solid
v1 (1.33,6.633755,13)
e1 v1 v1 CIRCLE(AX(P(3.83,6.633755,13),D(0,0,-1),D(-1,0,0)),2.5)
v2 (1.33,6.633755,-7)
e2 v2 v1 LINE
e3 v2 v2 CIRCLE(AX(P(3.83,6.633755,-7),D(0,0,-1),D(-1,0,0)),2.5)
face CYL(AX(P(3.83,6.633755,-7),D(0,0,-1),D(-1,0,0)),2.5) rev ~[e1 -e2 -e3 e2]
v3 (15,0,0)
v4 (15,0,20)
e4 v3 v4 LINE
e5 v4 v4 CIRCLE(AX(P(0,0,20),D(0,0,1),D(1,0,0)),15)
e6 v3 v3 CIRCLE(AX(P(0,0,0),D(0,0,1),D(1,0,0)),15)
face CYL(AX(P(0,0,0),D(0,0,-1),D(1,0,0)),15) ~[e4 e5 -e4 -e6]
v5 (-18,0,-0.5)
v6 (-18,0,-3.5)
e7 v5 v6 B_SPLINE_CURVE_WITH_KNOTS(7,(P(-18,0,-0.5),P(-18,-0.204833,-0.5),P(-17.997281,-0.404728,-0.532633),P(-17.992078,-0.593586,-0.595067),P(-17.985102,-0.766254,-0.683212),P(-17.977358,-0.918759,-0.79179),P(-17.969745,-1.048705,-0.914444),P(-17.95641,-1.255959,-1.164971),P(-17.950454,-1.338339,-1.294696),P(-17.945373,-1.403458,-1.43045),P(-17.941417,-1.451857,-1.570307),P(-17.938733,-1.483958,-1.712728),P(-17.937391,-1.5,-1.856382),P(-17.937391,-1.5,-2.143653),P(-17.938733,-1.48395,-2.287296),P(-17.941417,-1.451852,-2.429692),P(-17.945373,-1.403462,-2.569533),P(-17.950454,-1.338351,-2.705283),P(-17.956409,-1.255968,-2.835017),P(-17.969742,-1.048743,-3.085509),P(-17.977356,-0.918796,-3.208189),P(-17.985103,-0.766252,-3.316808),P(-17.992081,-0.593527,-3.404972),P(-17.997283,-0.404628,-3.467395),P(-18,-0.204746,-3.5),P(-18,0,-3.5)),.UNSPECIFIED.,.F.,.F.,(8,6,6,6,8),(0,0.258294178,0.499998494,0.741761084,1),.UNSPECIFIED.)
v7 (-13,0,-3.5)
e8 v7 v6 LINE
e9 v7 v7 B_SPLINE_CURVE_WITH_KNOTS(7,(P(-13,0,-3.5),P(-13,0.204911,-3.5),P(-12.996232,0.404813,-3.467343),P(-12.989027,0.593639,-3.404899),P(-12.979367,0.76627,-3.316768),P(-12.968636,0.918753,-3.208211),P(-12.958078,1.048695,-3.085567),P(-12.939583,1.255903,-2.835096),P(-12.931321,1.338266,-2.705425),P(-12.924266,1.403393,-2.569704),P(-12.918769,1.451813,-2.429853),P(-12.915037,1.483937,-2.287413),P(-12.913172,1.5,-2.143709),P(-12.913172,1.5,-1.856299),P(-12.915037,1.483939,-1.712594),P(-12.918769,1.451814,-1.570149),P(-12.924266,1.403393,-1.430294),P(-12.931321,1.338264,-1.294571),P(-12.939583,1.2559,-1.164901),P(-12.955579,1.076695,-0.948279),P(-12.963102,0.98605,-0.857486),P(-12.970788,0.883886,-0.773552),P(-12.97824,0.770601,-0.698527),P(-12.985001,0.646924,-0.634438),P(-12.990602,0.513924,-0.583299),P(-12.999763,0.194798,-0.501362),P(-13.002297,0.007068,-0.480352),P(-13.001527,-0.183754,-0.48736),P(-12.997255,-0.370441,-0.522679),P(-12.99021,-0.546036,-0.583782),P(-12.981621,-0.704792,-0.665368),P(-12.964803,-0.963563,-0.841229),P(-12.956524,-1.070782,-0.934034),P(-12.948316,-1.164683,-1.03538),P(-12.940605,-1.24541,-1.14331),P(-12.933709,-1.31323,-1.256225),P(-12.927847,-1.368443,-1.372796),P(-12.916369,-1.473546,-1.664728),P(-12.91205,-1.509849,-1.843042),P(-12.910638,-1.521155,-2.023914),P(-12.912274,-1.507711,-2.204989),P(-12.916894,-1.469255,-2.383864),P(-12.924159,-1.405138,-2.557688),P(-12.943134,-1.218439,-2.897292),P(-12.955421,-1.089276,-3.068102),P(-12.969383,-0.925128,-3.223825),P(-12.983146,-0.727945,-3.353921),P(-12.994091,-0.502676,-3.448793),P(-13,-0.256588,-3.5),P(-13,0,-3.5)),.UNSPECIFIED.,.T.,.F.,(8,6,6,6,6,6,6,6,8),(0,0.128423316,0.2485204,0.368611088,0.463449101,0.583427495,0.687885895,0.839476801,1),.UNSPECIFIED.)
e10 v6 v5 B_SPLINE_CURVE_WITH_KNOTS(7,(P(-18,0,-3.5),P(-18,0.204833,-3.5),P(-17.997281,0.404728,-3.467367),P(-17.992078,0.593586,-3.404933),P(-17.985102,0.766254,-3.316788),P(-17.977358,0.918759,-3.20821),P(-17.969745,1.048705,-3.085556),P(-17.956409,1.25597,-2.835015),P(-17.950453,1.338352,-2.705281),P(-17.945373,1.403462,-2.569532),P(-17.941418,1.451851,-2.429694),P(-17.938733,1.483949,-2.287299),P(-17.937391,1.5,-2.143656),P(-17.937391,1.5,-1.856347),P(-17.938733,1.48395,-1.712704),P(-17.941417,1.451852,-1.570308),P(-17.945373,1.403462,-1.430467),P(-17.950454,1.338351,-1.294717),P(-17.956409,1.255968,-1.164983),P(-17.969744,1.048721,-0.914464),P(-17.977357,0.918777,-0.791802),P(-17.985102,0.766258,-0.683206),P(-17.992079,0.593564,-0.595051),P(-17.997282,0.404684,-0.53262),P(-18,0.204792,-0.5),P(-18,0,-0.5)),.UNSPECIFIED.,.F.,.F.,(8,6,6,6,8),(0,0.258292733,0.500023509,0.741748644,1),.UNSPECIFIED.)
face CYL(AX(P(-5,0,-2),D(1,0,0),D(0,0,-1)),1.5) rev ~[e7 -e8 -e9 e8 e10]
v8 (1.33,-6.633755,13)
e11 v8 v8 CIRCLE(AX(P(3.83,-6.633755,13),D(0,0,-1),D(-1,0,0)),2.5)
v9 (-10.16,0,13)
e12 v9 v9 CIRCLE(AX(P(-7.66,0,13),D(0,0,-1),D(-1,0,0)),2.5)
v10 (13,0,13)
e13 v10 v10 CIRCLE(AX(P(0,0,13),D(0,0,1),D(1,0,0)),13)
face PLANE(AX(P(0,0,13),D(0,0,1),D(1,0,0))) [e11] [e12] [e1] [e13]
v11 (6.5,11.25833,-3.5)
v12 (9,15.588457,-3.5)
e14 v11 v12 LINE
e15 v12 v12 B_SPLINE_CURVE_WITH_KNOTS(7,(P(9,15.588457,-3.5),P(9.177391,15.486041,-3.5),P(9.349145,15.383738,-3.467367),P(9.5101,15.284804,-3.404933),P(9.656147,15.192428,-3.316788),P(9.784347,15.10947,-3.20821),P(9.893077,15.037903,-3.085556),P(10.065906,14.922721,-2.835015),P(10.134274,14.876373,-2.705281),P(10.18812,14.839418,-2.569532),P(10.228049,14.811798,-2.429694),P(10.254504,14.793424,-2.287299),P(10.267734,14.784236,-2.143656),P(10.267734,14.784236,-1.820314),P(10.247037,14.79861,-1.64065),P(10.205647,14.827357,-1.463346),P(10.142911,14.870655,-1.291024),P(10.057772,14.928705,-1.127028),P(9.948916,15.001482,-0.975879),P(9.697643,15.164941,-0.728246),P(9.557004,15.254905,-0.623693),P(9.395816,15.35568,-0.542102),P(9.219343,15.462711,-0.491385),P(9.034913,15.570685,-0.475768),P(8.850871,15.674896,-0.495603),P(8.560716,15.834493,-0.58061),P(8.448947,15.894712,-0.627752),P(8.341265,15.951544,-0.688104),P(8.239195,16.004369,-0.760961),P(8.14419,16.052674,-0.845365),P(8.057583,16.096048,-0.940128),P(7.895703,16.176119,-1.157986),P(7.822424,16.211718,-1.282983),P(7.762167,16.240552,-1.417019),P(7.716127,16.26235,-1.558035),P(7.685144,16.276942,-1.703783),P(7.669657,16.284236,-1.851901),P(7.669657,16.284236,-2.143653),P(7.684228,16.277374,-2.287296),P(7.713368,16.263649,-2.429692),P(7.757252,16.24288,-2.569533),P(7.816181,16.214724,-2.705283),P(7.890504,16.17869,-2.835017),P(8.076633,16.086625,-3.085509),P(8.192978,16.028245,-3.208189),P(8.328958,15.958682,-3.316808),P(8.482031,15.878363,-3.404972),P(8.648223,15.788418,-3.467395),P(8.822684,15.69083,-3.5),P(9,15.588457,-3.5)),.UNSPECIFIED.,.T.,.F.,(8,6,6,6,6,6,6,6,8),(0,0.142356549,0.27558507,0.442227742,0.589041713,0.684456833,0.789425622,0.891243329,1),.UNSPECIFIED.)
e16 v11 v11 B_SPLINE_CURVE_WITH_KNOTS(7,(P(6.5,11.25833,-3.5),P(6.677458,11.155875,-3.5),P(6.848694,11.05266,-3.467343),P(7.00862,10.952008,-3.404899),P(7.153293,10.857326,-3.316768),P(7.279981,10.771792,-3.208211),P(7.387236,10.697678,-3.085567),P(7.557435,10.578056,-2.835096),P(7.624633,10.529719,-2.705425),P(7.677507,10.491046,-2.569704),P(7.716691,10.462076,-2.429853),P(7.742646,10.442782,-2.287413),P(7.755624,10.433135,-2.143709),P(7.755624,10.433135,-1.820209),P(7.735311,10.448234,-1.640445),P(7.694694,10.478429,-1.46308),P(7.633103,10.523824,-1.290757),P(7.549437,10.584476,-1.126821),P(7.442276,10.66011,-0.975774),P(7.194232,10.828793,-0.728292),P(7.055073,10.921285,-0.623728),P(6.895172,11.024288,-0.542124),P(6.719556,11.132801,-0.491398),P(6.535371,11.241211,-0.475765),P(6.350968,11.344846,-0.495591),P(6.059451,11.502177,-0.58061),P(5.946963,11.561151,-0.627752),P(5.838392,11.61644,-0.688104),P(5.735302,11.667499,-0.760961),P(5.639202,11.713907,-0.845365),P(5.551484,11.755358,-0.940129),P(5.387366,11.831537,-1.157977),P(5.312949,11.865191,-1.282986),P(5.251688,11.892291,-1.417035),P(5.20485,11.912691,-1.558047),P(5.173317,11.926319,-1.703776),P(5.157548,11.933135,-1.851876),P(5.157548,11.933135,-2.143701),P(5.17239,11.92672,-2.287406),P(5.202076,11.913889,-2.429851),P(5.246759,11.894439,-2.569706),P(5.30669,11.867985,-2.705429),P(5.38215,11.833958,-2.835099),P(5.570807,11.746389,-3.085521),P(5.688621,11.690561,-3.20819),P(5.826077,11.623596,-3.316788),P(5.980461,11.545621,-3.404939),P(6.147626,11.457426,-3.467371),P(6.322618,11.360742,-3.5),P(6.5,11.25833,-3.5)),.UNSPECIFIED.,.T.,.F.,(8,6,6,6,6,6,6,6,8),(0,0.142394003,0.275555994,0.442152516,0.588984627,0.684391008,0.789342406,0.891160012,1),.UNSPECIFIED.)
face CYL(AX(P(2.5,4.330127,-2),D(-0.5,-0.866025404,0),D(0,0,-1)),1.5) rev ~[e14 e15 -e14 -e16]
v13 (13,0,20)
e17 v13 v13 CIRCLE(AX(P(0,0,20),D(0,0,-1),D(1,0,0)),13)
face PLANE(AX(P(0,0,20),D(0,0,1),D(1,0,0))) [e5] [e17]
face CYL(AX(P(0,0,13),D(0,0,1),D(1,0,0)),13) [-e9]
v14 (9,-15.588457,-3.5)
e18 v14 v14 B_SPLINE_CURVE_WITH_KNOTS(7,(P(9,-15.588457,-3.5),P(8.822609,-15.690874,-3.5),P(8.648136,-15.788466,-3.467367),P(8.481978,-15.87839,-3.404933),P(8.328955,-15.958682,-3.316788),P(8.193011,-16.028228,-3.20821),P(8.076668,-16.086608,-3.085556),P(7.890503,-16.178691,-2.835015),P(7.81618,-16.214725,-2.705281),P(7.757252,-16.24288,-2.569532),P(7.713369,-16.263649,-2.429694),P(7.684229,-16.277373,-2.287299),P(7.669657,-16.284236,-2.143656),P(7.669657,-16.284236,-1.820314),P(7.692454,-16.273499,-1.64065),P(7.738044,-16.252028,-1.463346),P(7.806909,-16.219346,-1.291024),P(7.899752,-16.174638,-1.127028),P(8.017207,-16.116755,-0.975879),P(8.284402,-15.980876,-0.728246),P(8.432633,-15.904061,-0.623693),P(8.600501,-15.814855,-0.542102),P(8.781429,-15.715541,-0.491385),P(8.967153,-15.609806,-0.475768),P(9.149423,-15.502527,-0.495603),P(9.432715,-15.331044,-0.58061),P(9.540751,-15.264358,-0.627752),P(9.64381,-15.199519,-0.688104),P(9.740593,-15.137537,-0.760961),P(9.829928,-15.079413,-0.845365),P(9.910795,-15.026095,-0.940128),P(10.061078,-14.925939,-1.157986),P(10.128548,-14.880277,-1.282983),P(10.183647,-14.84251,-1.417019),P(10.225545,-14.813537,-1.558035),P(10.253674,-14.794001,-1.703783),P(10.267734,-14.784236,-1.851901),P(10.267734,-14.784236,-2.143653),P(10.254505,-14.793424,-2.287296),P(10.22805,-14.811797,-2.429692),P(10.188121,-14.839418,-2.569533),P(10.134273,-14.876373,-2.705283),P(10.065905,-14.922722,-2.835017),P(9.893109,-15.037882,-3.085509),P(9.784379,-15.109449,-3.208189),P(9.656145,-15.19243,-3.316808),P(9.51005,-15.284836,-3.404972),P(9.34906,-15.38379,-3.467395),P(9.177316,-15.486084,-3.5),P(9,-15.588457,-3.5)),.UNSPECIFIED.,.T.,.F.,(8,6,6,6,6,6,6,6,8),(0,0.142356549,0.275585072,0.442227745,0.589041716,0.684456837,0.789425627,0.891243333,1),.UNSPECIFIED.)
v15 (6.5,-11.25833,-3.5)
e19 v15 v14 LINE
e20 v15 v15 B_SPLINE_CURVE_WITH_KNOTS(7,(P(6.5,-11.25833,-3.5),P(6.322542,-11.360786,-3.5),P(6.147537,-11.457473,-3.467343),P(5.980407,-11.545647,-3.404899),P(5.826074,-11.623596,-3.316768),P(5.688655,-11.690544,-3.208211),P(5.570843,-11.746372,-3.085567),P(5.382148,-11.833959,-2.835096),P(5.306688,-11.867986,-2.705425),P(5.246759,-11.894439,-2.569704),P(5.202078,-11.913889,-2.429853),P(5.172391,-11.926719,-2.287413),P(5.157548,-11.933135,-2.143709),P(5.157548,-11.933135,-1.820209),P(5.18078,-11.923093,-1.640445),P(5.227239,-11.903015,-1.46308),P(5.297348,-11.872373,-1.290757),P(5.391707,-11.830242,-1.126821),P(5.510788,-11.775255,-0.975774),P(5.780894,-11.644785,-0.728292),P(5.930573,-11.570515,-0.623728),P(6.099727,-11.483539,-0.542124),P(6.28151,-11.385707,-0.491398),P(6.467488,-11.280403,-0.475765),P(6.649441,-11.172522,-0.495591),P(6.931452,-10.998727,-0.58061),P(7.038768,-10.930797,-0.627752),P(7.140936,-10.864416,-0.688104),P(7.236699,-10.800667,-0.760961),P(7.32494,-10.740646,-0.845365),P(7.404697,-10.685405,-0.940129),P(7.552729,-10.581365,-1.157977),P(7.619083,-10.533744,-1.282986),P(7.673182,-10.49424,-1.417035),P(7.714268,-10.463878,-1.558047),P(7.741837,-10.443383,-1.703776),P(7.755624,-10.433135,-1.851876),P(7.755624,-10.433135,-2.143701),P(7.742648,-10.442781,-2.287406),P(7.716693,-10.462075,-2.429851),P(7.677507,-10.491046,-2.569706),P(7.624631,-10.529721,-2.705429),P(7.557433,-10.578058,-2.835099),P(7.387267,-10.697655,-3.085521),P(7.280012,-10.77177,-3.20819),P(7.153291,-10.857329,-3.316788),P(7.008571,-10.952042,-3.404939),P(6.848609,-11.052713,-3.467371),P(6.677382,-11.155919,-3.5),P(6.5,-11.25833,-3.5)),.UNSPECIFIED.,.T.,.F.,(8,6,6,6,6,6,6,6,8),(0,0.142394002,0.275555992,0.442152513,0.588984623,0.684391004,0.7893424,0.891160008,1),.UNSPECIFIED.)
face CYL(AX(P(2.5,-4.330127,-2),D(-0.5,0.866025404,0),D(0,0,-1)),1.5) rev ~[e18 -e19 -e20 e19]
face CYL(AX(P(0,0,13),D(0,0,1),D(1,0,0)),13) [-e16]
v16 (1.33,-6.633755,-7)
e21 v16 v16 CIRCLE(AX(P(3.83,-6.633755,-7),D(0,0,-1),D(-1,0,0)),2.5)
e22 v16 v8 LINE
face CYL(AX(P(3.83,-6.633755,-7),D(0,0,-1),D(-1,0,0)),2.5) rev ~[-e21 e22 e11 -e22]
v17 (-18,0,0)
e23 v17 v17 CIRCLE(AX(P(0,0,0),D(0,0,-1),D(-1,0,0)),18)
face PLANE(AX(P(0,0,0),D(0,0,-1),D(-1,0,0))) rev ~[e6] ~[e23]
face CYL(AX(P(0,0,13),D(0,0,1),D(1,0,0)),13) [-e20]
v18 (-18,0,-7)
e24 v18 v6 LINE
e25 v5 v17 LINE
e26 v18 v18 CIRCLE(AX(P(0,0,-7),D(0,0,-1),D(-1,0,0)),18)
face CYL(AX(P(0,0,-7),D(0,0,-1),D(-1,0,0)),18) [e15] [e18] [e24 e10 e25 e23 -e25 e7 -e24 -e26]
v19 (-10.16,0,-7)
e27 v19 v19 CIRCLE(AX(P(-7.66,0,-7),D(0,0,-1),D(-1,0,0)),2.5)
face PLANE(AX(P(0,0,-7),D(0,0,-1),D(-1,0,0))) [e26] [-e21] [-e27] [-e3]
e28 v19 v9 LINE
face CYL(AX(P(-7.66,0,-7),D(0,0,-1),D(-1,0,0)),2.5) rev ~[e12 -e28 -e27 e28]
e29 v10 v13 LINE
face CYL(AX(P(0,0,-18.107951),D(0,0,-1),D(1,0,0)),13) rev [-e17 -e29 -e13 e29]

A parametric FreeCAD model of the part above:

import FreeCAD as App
import Part
import Sketcher

doc = App.newDocument("Part")
params = doc.addObject("Spreadsheet::Sheet", "Params")
for row, (alias, value) in enumerate([
    ("sketch1_diameter", "30 mm"),
    ("pad1_length", "20 mm"),
    ("sketch2_diameter", "21.9 mm"),
    ("pad2_length", "3.5 mm"),
    ("sketch3_diameter", "6.1 mm"),
    ("pocket1_length", "4.1 mm"),
    ("sketch4_diameter", "3 mm"),
    ("pocket2_length", "4 mm"),
    ("sketch5_diameter", "6 mm"),
    ("sketch5_diameter2", "21.9 mm"),
    ("pad3_length", "11 mm"),
    ("sketch6_diameter", "3 mm"),
    ("sketch7_diameter", "36 mm"),
    ("sketch7_diameter2", "6.5 mm"),
    ("sketch7_diameter3", "6.1 mm"),
    ("pad4_length", "7 mm"),
    ("sketch8_diameter", "3 mm"),
    ("pocket4_length", "17 mm"),
    ("sketch9_diameter", "26 mm"),
    ("sketch10_diameter", "26 mm"),
    ("pad5_length", "20 mm"),
    ("sketch11_diameter", "5 mm"),
], start=1):
    params.set(f"A{row}", alias)
    params.set(f"B{row}", "=" + value)
    params.setAlias(f"B{row}", alias)

body = doc.addObject("PartDesign::Body", "Body")

# Sketch on XY plane
sketch1 = doc.addObject("Sketcher::SketchObject", "Sketch")
body.addObject(sketch1)
sketch1.AttachmentSupport = (doc.XY_Plane, [""])
sketch1.MapMode = "FlatFace"
sketch1.addGeometry(Part.Circle(App.Vector(0, 0, 0), App.Vector(0, 0, 1), 15), False)
sketch1.addConstraint([
    Sketcher.Constraint("Coincident", 0, 3, -1, 1),
    Sketcher.Constraint("Diameter", 0, 30.0),
])
sketch1.setExpression("Constraints[1]", "Params.sketch1_diameter")
pad1 = doc.addObject("PartDesign::Pad", "Pad")
body.addObject(pad1)
pad1.Profile = sketch1
pad1.setExpression("Length", "Params.pad1_length")

# Sketch on XY plane
sketch2 = doc.addObject("Sketcher::SketchObject", "Sketch001")
body.addObject(sketch2)
sketch2.AttachmentSupport = (doc.XY_Plane, [""])
sketch2.MapMode = "FlatFace"
sketch2.AttachmentOffset = App.Placement(App.Vector(0, 0, 20), App.Rotation())
sketch2.addGeometry(Part.Circle(App.Vector(0, 0, 0), App.Vector(0, 0, 1), 11), False)
sketch2.addConstraint([
    Sketcher.Constraint("Coincident", 0, 3, -1, 1),
    Sketcher.Constraint("Diameter", 0, 21.9),
])
sketch2.setExpression("Constraints[1]", "Params.sketch2_diameter")
pad2 = doc.addObject("PartDesign::Pad", "Pad001")
body.addObject(pad2)
pad2.Profile = sketch2
pad2.setExpression("Length", "Params.pad2_length")

# Sketch on XY plane
sketch3 = doc.addObject("Sketcher::SketchObject", "Sketch002")
body.addObject(sketch3)
sketch3.AttachmentSupport = (doc.XY_Plane, [""])
sketch3.MapMode = "FlatFace"
sketch3.addGeometry(Part.Circle(App.Vector(0, 0, 0), App.Vector(0, 0, 1), 3), False)
sketch3.addConstraint([
    Sketcher.Constraint("Coincident", 0, 3, -1, 1),
    Sketcher.Constraint("Diameter", 0, 6.1),
])
sketch3.setExpression("Constraints[1]", "Params.sketch3_diameter")
pocket1 = doc.addObject("PartDesign::Pocket", "Pocket")
body.addObject(pocket1)
pocket1.Profile = sketch3
pocket1.setExpression("Length", "Params.pocket1_length")
pocket1.Reversed = True

# Sketch on XY plane
sketch4 = doc.addObject("Sketcher::SketchObject", "Sketch003")
body.addObject(sketch4)
sketch4.AttachmentSupport = (doc.XY_Plane, [""])
sketch4.MapMode = "FlatFace"
sketch4.AttachmentOffset = App.Placement(App.Vector(0, 0, 4.1), App.Rotation())
sketch4.addGeometry(Part.Circle(App.Vector(0, 0, 0), App.Vector(0, 0, 1), 1.5), False)
sketch4.addConstraint([
    Sketcher.Constraint("Coincident", 0, 3, -1, 1),
    Sketcher.Constraint("Diameter", 0, 3.0),
])
sketch4.setExpression("Constraints[1]", "Params.sketch4_diameter")
pocket2 = doc.addObject("PartDesign::Pocket", "Pocket001")
body.addObject(pocket2)
pocket2.Profile = sketch4
pocket2.setExpression("Length", "Params.pocket2_length")
pocket2.Reversed = True

# Sketch on XY plane
sketch5 = doc.addObject("Sketcher::SketchObject", "Sketch004")
body.addObject(sketch5)
sketch5.AttachmentSupport = (doc.XY_Plane, [""])
sketch5.MapMode = "FlatFace"
sketch5.AttachmentOffset = App.Placement(App.Vector(0, 0, 23.5), App.Rotation())
sketch5.addGeometry([
    Part.Circle(App.Vector(0, 0, 0), App.Vector(0, 0, 1), 10.9),
    Part.Circle(App.Vector(0, 0, 0), App.Vector(0, 0, 1), 3),
], False)
sketch5.addConstraint([
    Sketcher.Constraint("Coincident", 0, 3, -1, 1),
    Sketcher.Constraint("Coincident", 1, 3, -1, 1),
    Sketcher.Constraint("Diameter", 1, 6.0),
    Sketcher.Constraint("Diameter", 0, 21.9),
])
sketch5.setExpression("Constraints[2]", "Params.sketch5_diameter")
sketch5.setExpression("Constraints[3]", "Params.sketch5_diameter2")
pad3 = doc.addObject("PartDesign::Pad", "Pad002")
body.addObject(pad3)
pad3.Profile = sketch5
pad3.setExpression("Length", "Params.pad3_length")

# Sketch on XY plane
sketch6 = doc.addObject("Sketcher::SketchObject", "Sketch005")
body.addObject(sketch6)
sketch6.AttachmentSupport = (doc.XY_Plane, [""])
sketch6.MapMode = "FlatFace"
sketch6.AttachmentOffset = App.Placement(App.Vector(0, 0, 34.5), App.Rotation())
sketch6.addGeometry([
    Part.Circle(App.Vector(7, 0, 0), App.Vector(0, 0, 1), 1.5),
    Part.Circle(App.Vector(-3.5, -6.1, 0), App.Vector(0, 0, 1), 1.5),
    Part.Circle(App.Vector(-3.5, 6.1, 0), App.Vector(0, 0, 1), 1.5),
], False)
sketch6.addConstraint([
    Sketcher.Constraint("Equal", 0, 1),
    Sketcher.Constraint("Equal", 1, 2),
    Sketcher.Constraint("Symmetric", 1, 3, 2, 3, -1),
    Sketcher.Constraint("PointOnObject", 0, 3, -1),
    Sketcher.Constraint("Diameter", 0, 3.0),
    Sketcher.Constraint("DistanceX", -1, 1, 0, 3, 7.0),
    Sketcher.Constraint("DistanceX", 1, 3, -1, 1, 3.5),
    Sketcher.Constraint("DistanceY", 1, 3, -1, 1, 6.062178),
])
sketch6.setExpression("Constraints[4]", "Params.sketch6_diameter")
pocket3 = doc.addObject("PartDesign::Pocket", "Pocket002")
body.addObject(pocket3)
pocket3.Profile = sketch6
pocket3.Type = "ThroughAll"

# Sketch on XY plane
sketch7 = doc.addObject("Sketcher::SketchObject", "Sketch006")
body.addObject(sketch7)
sketch7.AttachmentSupport = (doc.XY_Plane, [""])
sketch7.MapMode = "FlatFace"
sketch7.AttachmentOffset = App.Placement(App.Vector(0, 0, -7), App.Rotation())
sketch7.addGeometry([
    Part.Circle(App.Vector(0, 0, 0), App.Vector(0, 0, 1), 18),  # 0
    Part.Circle(App.Vector(-3.5, -6.1, 0), App.Vector(0, 0, 1), 3.2),  # 1
    Part.Circle(App.Vector(7, 0, 0), App.Vector(0, 0, 1), 3.2),  # 2
    Part.Circle(App.Vector(0, 0, 0), App.Vector(0, 0, 1), 3),  # 3
    Part.Circle(App.Vector(-3.5, 6.1, 0), App.Vector(0, 0, 1), 3.2),  # 4
], False)
sketch7.addConstraint([
    Sketcher.Constraint("Coincident", 0, 3, -1, 1),
    Sketcher.Constraint("Coincident", 3, 3, -1, 1),
    Sketcher.Constraint("Equal", 1, 2),
    Sketcher.Constraint("Equal", 2, 4),
    Sketcher.Constraint("Symmetric", 1, 3, 4, 3, -1),
    Sketcher.Constraint("PointOnObject", 2, 3, -1),
    Sketcher.Constraint("Diameter", 0, 36.0),
    Sketcher.Constraint("Diameter", 1, 6.5),
    Sketcher.Constraint("Diameter", 3, 6.1),
    Sketcher.Constraint("DistanceX", -1, 1, 2, 3, 7.0),
    Sketcher.Constraint("DistanceX", 1, 3, -1, 1, 3.5),
    Sketcher.Constraint("DistanceY", 1, 3, -1, 1, 6.062178),
])
sketch7.setExpression("Constraints[6]", "Params.sketch7_diameter")
sketch7.setExpression("Constraints[7]", "Params.sketch7_diameter2")
sketch7.setExpression("Constraints[8]", "Params.sketch7_diameter3")
pad4 = doc.addObject("PartDesign::Pad", "Pad003")
body.addObject(pad4)
pad4.Profile = sketch7
pad4.setExpression("Length", "Params.pad4_length")

# Sketch on YZ plane
sketch8 = doc.addObject("Sketcher::SketchObject", "Sketch007")
body.addObject(sketch8)
sketch8.AttachmentSupport = (doc.YZ_Plane, [""])
sketch8.MapMode = "FlatFace"
sketch8.AttachmentOffset = App.Placement(App.Vector(0, 0, -5), App.Rotation())
sketch8.addGeometry(Part.Circle(App.Vector(0, -2, 0), App.Vector(0, 0, 1), 1.5), False)
sketch8.addConstraint([
    Sketcher.Constraint("PointOnObject", 0, 3, -2),
    Sketcher.Constraint("Diameter", 0, 3.0),
    Sketcher.Constraint("DistanceY", 0, 3, -1, 1, 2.0),
])
sketch8.setExpression("Constraints[1]", "Params.sketch8_diameter")
pocket4 = doc.addObject("PartDesign::Pocket", "Pocket003")
body.addObject(pocket4)
pocket4.Profile = sketch8
pocket4.setExpression("Length", "Params.pocket4_length")
doc.recompute()

polarpattern = doc.addObject("PartDesign::PolarPattern", "PolarPattern")
body.addObject(polarpattern)
polarpattern.Originals = [pocket4]
polarpattern.Axis = (doc.Z_Axis, [""])
polarpattern.Angle = 360
polarpattern.Occurrences = 3
body.Tip = polarpattern

# Sketch on XY plane
sketch9 = doc.addObject("Sketcher::SketchObject", "Sketch008")
body.addObject(sketch9)
sketch9.AttachmentSupport = (doc.XY_Plane, [""])
sketch9.MapMode = "FlatFace"
sketch9.AttachmentOffset = App.Placement(App.Vector(0, 0, 20), App.Rotation())
sketch9.addGeometry(Part.Circle(App.Vector(0, 0, 0), App.Vector(0, 0, 1), 13), False)
sketch9.addConstraint([
    Sketcher.Constraint("Coincident", 0, 3, -1, 1),
    Sketcher.Constraint("Diameter", 0, 26.0),
])
sketch9.setExpression("Constraints[1]", "Params.sketch9_diameter")
pocket5 = doc.addObject("PartDesign::Pocket", "Pocket004")
body.addObject(pocket5)
pocket5.Profile = sketch9
pocket5.Type = "ThroughAll"
pocket5.Midplane = True

# Sketch on XY plane
sketch10 = doc.addObject("Sketcher::SketchObject", "Sketch009")
body.addObject(sketch10)
sketch10.AttachmentSupport = (doc.XY_Plane, [""])
sketch10.MapMode = "FlatFace"
sketch10.AttachmentOffset = App.Placement(App.Vector(0, 0, 13), App.Rotation())
sketch10.addGeometry(Part.Circle(App.Vector(0, 0, 0), App.Vector(0, 0, 1), 13), False)
sketch10.addConstraint([
    Sketcher.Constraint("Coincident", 0, 3, -1, 1),
    Sketcher.Constraint("Diameter", 0, 26.0),
])
sketch10.setExpression("Constraints[1]", "Params.sketch10_diameter")
pad5 = doc.addObject("PartDesign::Pad", "Pad004")
body.addObject(pad5)
pad5.Profile = sketch10
pad5.setExpression("Length", "Params.pad5_length")
pad5.Reversed = True

# Sketch on XY plane
sketch11 = doc.addObject("Sketcher::SketchObject", "Sketch010")
body.addObject(sketch11)
sketch11.AttachmentSupport = (doc.XY_Plane, [""])
sketch11.MapMode = "FlatFace"
sketch11.AttachmentOffset = App.Placement(App.Vector(0, 0, -7), App.Rotation())
sketch11.addGeometry([
    Part.Circle(App.Vector(-7.7, 0, 0), App.Vector(0, 0, 1), 2.5),
    Part.Circle(App.Vector(3.8, -6.6, 0), App.Vector(0, 0, 1), 2.5),
    Part.Circle(App.Vector(3.8, 6.6, 0), App.Vector(0, 0, 1), 2.5),
], False)
sketch11.addConstraint([
    Sketcher.Constraint("Equal", 0, 1),
    Sketcher.Constraint("Equal", 1, 2),
    Sketcher.Constraint("Symmetric", 1, 3, 2, 3, -1),
    Sketcher.Constraint("PointOnObject", 0, 3, -1),
    Sketcher.Constraint("Diameter", 0, 5.0),
    Sketcher.Constraint("DistanceX", 0, 3, -1, 1, 7.66),
    Sketcher.Constraint("DistanceX", -1, 1, 1, 3, 3.83),
    Sketcher.Constraint("DistanceY", 1, 3, 2, 3, 13.267509),
])
sketch11.setExpression("Constraints[4]", "Params.sketch11_diameter")
pocket6 = doc.addObject("PartDesign::Pocket", "Pocket005")
body.addObject(pocket6)
pocket6.Profile = sketch11
pocket6.Type = "ThroughAll"
pocket6.Reversed = True

doc.recompute()
